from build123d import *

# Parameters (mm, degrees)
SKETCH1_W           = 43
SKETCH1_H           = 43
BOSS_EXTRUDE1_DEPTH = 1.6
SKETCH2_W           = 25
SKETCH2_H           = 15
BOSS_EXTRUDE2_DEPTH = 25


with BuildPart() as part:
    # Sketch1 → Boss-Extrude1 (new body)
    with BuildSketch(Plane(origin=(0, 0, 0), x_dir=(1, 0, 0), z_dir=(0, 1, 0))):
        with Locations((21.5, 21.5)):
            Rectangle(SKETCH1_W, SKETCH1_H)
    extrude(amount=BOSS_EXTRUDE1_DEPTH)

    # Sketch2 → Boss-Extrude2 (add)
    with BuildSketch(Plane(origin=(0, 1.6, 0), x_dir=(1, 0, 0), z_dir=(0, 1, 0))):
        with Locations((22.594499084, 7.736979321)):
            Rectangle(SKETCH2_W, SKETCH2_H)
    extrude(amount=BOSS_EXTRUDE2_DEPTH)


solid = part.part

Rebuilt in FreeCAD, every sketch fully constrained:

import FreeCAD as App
import Part
import Sketcher
from FreeCAD import Vector
Q = App.Units.Quantity

doc = App.newDocument("Part")
params = doc.addObject("Spreadsheet::Sheet", "Params")
for row, (alias, value) in enumerate([
    ("sketch1_width", "43 mm"),
    ("pad1_length", "1.6 mm"),
    ("sketch2_width", "25 mm"),
    ("sketch2_height", "15 mm"),
    ("pad2_length", "25 mm"),
], start=1):
    params.set(f"A{row}", alias)
    params.set(f"B{row}", "=" + value)
    params.setAlias(f"B{row}", alias)

body = doc.addObject("PartDesign::Body", "Body")

# Sketch on XZ plane
sketch1 = body.newObject("Sketcher::SketchObject", "Sketch")
sketch1.AttachmentSupport = (doc.getObject("XZ_Plane"), [""])
sketch1.MapMode = "FlatFace"
sketch1.addGeometry(Part.LineSegment(Vector(0, -43, 0), Vector(0, 0, 0)), False)
sketch1.addGeometry(Part.LineSegment(Vector(0, 0, 0), Vector(43, 0, 0)), False)
sketch1.addGeometry(Part.LineSegment(Vector(43, 0, 0), Vector(43, -43, 0)), False)
sketch1.addGeometry(Part.LineSegment(Vector(43, -43, 0), Vector(0, -43, 0)), False)
sketch1.addConstraint(Sketcher.Constraint("Coincident", 0, 2, 1, 1))
sketch1.addConstraint(Sketcher.Constraint("Coincident", 1, 2, 2, 1))
sketch1.addConstraint(Sketcher.Constraint("Coincident", 2, 2, 3, 1))
sketch1.addConstraint(Sketcher.Constraint("Coincident", 3, 2, 0, 1))
sketch1.addConstraint(Sketcher.Constraint("Vertical", 0))
sketch1.addConstraint(Sketcher.Constraint("Horizontal", 1))
sketch1.addConstraint(Sketcher.Constraint("Vertical", 2))
sketch1.addConstraint(Sketcher.Constraint("Horizontal", 3))
sketch1.addConstraint(Sketcher.Constraint("Coincident", 0, 2, -1, 1))
sketch1.addConstraint(Sketcher.Constraint("Equal", 3, 0))
sketch1.addConstraint(Sketcher.Constraint("DistanceX", 1, 1, 1, 2, Q("43 mm")))
sketch1.setExpression("Constraints[10]", "Params.sketch1_width")
pad1 = body.newObject("PartDesign::Pad", "Pad")
pad1.Profile = sketch1
pad1.setExpression("Length", "Params.pad1_length")
pad1.Reversed = True

# Sketch on XZ plane
sketch2 = body.newObject("Sketcher::SketchObject", "Sketch001")
sketch2.AttachmentSupport = (doc.getObject("XZ_Plane"), [""])
sketch2.MapMode = "FlatFace"
sketch2.AttachmentOffset = App.Placement(Vector(0, 0, -1.6), App.Rotation())
sketch2.addGeometry(Part.LineSegment(Vector(10, -15, 0), Vector(10, 0, 0)), False)
sketch2.addGeometry(Part.LineSegment(Vector(10, 0, 0), Vector(35, 0, 0)), False)
sketch2.addGeometry(Part.LineSegment(Vector(35, 0, 0), Vector(35, -15, 0)), False)
sketch2.addGeometry(Part.LineSegment(Vector(35, -15, 0), Vector(10, -15, 0)), False)
sketch2.addConstraint(Sketcher.Constraint("Coincident", 0, 2, 1, 1))
sketch2.addConstraint(Sketcher.Constraint("Coincident", 1, 2, 2, 1))
sketch2.addConstraint(Sketcher.Constraint("Coincident", 2, 2, 3, 1))
sketch2.addConstraint(Sketcher.Constraint("Coincident", 3, 2, 0, 1))
sketch2.addConstraint(Sketcher.Constraint("Vertical", 0))
sketch2.addConstraint(Sketcher.Constraint("Horizontal", 1))
sketch2.addConstraint(Sketcher.Constraint("Vertical", 2))
sketch2.addConstraint(Sketcher.Constraint("Horizontal", 3))
sketch2.addConstraint(Sketcher.Constraint("DistanceX", 1, 1, 1, 2, Q("25 mm")))
sketch2.addConstraint(Sketcher.Constraint("DistanceY", 0, 1, 0, 2, Q("15 mm")))
sketch2.addConstraint(Sketcher.Constraint("DistanceX", -1, 1, 0, 2, Q("10.094499 mm")))
sketch2.addConstraint(Sketcher.Constraint("DistanceY", 0, 2, -1, 1, Q("0.236979 mm")))
sketch2.setExpression("Constraints[8]", "Params.sketch2_width")
sketch2.setExpression("Constraints[9]", "Params.sketch2_height")
pad2 = body.newObject("PartDesign::Pad", "Pad001")
pad2.Profile = sketch2
pad2.setExpression("Length", "Params.pad2_length")
pad2.Reversed = True

doc.recompute()
